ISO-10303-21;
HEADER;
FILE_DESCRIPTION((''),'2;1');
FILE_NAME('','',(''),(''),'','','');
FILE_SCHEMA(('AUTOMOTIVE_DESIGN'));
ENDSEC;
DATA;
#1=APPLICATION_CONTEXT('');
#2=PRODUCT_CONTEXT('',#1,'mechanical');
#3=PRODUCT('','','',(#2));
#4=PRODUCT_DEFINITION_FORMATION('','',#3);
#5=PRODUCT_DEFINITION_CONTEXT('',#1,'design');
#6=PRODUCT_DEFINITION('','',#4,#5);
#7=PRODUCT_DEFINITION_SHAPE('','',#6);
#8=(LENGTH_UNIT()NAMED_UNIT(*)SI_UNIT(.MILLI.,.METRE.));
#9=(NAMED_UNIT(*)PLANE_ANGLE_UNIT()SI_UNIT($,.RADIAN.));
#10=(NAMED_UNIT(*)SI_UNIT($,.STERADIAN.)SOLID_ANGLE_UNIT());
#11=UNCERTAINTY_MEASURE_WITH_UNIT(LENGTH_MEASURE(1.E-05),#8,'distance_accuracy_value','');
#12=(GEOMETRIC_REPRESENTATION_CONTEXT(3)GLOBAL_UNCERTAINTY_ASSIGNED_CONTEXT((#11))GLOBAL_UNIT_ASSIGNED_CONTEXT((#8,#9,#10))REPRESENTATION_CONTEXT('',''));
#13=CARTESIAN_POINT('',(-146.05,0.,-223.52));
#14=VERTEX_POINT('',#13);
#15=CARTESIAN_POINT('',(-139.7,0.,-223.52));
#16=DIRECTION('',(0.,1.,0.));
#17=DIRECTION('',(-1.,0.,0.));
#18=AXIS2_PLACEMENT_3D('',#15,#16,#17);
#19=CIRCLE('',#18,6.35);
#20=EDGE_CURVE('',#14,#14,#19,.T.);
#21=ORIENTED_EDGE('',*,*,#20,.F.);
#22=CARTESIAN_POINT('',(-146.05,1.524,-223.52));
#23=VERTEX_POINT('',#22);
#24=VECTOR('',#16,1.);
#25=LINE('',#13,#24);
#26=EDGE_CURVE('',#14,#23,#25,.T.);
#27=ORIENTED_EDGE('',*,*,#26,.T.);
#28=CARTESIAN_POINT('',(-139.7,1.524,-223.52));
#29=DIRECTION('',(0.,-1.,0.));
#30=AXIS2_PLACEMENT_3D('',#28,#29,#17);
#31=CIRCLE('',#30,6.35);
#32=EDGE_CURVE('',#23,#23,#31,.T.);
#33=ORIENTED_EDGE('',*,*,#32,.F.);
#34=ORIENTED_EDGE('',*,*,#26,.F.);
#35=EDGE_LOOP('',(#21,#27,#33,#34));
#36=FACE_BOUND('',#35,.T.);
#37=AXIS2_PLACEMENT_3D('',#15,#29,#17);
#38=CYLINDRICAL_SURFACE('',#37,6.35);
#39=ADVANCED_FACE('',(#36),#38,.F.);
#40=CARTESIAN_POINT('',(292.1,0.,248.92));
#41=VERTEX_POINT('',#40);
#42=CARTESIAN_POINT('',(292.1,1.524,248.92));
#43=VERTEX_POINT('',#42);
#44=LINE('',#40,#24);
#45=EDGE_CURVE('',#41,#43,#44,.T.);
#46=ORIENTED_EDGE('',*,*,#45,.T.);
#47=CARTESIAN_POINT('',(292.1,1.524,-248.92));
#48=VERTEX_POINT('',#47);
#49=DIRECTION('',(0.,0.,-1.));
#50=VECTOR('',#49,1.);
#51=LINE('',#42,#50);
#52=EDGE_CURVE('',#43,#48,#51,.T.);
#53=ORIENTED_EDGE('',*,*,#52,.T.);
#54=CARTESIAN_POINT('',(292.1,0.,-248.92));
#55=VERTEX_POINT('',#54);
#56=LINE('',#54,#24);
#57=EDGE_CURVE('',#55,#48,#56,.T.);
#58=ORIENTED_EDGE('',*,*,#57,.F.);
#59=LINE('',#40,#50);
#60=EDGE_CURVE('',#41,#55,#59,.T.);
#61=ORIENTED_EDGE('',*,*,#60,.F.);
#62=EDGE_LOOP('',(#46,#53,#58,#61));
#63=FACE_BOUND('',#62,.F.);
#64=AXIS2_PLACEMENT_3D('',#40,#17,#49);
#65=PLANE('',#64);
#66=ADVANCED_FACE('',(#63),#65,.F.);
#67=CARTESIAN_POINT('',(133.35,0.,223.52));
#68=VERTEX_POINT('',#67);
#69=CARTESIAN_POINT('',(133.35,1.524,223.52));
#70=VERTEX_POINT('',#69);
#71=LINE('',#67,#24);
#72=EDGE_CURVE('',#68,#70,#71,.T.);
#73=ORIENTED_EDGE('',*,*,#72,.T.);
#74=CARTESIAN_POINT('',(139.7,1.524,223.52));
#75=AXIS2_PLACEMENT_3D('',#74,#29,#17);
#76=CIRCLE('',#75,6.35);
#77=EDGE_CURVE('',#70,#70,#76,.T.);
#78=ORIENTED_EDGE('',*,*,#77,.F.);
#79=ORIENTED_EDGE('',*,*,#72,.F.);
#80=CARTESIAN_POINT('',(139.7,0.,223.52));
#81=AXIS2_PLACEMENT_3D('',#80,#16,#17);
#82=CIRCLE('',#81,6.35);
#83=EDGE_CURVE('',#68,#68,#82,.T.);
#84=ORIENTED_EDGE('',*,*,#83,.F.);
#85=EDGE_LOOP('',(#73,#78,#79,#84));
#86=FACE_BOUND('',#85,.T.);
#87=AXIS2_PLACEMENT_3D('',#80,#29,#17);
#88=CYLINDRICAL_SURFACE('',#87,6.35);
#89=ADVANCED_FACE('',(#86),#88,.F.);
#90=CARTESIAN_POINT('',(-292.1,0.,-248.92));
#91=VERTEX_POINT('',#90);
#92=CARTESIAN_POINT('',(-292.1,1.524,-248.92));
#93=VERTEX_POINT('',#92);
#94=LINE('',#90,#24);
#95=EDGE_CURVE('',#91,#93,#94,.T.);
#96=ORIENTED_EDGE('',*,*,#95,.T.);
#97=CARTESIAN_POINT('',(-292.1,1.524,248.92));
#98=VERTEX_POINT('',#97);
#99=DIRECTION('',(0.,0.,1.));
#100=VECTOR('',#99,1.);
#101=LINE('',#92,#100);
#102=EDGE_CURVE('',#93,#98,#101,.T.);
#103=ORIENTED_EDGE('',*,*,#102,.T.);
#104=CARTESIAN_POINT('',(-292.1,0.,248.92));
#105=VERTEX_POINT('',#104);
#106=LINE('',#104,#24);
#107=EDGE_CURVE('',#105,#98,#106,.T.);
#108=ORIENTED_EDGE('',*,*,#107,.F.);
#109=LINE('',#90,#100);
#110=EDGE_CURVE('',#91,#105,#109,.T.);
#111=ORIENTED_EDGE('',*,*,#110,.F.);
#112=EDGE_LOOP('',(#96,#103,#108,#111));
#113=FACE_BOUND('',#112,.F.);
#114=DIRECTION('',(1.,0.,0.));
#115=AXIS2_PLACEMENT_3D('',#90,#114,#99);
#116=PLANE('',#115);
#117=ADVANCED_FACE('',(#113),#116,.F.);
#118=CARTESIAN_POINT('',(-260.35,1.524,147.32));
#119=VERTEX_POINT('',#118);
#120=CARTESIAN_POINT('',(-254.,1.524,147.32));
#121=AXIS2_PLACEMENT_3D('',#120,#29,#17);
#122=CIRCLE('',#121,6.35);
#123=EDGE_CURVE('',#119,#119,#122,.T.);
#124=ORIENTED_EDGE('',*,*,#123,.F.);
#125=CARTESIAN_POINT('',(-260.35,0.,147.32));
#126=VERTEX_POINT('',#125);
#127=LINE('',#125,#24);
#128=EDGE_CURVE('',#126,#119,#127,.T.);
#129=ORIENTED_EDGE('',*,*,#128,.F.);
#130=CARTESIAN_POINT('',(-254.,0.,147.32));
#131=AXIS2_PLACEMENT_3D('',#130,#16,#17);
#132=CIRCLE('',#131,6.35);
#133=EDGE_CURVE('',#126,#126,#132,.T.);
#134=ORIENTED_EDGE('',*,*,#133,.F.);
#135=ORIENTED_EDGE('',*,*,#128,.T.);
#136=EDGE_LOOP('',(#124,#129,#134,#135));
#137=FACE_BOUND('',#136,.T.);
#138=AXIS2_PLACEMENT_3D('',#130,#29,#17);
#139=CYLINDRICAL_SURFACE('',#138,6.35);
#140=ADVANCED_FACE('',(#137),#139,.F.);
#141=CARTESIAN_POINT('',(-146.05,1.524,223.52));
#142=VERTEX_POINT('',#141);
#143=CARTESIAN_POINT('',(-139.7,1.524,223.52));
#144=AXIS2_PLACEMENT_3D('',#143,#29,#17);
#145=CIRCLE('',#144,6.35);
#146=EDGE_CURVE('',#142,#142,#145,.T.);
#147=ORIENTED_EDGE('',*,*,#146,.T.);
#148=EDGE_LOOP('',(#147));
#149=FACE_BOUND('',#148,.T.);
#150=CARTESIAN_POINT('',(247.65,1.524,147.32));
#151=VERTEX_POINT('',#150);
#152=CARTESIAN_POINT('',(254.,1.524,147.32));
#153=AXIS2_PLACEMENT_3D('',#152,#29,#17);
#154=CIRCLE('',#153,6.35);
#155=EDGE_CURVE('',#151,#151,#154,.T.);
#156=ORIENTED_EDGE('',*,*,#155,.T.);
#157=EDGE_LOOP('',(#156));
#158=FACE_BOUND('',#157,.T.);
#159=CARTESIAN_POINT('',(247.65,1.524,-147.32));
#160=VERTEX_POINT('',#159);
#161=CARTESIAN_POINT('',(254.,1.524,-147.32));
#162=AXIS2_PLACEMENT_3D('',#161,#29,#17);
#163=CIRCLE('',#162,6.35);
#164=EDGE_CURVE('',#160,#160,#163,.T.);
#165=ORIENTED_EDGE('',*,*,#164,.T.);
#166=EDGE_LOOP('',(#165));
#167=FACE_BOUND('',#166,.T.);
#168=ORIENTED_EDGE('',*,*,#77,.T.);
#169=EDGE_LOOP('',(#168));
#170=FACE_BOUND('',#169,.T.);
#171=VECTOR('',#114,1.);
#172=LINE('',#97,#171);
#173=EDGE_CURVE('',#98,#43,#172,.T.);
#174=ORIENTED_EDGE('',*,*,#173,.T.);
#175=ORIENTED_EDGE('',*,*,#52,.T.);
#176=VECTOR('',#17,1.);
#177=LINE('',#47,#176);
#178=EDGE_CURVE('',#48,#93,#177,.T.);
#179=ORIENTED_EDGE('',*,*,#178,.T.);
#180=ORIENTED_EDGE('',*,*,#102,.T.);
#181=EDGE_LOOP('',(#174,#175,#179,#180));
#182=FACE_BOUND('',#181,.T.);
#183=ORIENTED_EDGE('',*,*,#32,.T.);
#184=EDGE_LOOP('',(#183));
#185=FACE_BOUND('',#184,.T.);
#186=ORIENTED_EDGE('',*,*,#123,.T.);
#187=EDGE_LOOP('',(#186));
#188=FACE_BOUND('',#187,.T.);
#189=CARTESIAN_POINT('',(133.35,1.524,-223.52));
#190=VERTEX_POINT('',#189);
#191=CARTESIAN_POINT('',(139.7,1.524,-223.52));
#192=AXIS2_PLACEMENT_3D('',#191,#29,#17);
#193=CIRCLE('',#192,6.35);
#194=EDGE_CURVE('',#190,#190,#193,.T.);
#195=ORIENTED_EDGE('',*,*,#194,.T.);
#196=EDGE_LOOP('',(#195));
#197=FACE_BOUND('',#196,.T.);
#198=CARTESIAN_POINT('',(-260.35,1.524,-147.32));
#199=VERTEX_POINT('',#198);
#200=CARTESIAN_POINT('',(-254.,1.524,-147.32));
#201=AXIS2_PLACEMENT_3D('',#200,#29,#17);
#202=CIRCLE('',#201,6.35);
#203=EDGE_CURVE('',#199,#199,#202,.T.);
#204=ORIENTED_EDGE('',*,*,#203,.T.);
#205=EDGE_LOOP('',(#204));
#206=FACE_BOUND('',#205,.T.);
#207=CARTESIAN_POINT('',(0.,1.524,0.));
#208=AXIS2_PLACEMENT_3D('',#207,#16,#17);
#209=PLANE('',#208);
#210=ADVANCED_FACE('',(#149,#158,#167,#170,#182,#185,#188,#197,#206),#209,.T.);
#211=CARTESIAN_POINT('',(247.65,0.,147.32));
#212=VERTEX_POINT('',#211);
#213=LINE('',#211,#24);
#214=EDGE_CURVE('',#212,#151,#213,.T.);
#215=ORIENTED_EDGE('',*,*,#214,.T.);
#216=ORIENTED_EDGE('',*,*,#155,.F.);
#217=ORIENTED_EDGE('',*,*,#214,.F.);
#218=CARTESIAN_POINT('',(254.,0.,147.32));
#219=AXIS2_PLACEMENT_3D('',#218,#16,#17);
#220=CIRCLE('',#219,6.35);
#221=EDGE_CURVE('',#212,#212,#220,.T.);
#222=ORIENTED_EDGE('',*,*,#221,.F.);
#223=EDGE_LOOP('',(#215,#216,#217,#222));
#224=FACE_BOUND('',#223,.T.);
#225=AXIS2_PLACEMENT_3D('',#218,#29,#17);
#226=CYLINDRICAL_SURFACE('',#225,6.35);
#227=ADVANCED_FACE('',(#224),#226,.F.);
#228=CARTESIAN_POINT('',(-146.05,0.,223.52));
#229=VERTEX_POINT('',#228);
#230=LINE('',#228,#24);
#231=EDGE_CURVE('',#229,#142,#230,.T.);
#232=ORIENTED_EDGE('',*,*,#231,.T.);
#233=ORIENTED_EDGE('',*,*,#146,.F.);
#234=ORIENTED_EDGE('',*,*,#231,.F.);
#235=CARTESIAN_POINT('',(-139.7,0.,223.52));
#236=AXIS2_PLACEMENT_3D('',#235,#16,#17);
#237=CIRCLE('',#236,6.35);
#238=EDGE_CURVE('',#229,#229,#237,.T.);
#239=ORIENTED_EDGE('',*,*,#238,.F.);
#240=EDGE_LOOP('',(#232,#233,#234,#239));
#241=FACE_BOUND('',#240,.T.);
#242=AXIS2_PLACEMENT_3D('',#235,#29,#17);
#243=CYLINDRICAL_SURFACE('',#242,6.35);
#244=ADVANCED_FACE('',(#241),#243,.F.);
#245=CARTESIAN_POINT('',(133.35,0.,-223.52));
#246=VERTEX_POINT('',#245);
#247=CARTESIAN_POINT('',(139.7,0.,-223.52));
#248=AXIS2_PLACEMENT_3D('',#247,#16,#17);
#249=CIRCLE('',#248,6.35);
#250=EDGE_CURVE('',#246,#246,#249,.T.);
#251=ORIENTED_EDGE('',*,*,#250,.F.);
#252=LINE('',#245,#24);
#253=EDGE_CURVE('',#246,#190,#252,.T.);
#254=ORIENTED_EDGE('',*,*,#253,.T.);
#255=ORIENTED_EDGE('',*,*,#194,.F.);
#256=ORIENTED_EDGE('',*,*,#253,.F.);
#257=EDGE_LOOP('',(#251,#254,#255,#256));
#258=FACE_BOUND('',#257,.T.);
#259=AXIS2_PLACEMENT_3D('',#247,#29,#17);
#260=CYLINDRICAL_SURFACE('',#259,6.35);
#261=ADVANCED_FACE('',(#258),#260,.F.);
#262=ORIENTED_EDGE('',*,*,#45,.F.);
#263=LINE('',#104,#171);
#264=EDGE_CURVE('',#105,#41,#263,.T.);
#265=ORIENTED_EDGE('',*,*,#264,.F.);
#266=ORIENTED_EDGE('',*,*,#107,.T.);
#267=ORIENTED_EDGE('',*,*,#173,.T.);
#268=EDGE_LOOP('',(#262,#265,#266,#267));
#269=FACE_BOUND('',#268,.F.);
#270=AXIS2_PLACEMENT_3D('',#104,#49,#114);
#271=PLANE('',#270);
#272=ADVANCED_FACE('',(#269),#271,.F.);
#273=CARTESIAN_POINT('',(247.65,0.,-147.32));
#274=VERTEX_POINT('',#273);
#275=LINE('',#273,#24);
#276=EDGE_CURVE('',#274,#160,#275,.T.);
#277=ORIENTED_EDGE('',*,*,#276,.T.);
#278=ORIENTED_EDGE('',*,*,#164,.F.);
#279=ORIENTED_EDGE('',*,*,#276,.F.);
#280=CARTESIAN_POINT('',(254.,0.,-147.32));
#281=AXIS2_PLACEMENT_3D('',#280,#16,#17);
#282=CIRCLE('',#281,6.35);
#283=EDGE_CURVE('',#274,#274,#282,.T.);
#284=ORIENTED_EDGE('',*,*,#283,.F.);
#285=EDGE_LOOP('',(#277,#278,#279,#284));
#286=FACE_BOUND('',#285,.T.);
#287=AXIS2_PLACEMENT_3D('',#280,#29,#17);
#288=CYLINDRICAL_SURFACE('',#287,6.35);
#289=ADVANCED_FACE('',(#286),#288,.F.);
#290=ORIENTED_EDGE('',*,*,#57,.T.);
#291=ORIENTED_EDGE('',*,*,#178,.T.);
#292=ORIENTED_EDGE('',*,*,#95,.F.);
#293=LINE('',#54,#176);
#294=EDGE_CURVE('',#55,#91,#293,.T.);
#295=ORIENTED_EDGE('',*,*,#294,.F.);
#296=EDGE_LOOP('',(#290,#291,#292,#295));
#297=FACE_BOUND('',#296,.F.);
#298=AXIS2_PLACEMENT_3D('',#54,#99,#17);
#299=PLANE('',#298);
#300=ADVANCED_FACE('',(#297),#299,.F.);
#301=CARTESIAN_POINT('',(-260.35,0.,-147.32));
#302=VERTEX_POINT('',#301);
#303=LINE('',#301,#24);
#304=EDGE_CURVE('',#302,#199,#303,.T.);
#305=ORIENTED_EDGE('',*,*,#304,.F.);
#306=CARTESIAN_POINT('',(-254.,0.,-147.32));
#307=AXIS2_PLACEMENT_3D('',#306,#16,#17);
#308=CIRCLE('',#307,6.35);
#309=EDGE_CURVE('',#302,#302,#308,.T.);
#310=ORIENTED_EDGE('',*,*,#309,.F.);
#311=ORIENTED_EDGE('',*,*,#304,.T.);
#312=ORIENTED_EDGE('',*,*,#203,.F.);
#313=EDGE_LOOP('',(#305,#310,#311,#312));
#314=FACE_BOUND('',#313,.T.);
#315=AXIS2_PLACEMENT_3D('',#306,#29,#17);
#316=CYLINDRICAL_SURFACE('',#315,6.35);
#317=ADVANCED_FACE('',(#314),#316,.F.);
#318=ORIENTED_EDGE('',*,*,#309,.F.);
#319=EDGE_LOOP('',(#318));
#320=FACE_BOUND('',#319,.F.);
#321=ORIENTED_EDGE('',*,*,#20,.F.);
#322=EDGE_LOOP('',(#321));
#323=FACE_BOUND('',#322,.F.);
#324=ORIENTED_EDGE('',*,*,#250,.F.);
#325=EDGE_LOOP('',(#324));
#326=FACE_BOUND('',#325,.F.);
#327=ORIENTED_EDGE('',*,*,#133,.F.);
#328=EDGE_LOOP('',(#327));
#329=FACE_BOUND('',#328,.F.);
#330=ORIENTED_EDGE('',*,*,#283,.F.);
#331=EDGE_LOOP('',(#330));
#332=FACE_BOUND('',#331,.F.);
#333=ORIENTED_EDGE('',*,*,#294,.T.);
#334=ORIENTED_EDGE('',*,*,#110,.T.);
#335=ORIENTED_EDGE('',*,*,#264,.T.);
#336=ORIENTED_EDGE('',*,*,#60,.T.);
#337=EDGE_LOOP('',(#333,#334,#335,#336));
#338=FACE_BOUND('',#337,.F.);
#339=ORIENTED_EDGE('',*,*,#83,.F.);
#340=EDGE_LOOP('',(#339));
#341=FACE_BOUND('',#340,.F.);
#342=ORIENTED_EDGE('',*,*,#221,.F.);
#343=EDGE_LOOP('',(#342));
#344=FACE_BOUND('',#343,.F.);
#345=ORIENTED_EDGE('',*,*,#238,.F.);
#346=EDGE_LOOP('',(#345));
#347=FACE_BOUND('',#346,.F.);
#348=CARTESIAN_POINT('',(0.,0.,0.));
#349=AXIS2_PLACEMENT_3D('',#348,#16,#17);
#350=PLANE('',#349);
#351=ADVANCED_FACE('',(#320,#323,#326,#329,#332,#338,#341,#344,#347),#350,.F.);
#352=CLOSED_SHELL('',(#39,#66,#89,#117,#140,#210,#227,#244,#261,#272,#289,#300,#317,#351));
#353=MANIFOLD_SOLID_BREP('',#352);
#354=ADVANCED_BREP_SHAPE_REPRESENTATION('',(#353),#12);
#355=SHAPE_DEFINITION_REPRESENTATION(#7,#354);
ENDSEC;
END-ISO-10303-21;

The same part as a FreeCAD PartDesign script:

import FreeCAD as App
import Part
import Sketcher

V = App.Vector
Q = App.Units.Quantity

doc = App.newDocument("Part")
body = doc.addObject("PartDesign::Body", "Body")

# Sketch on XZ plane
sketch1 = doc.addObject("Sketcher::SketchObject", "Sketch")
body.addObject(sketch1)
sketch1.AttachmentSupport = (doc.XZ_Plane, [""])
sketch1.MapMode = "FlatFace"
sketch1.addGeometry(Part.LineSegment(V(292.1, 248.92, 0), V(292.1, -248.92, 0)), False)
sketch1.addGeometry(Part.LineSegment(V(292.1, -248.92, 0), V(-292.1, -248.92, 0)), False)
sketch1.addGeometry(Part.LineSegment(V(-292.1, -248.92, 0), V(-292.1, 248.92, 0)), False)
sketch1.addGeometry(Part.LineSegment(V(-292.1, 248.92, 0), V(292.1, 248.92, 0)), False)
sketch1.addConstraint(Sketcher.Constraint("Coincident", 0, 2, 1, 1))
sketch1.addConstraint(Sketcher.Constraint("Coincident", 1, 2, 2, 1))
sketch1.addConstraint(Sketcher.Constraint("Coincident", 2, 2, 3, 1))
sketch1.addConstraint(Sketcher.Constraint("Coincident", 3, 2, 0, 1))
sketch1.addConstraint(Sketcher.Constraint("Vertical", 0))
sketch1.addConstraint(Sketcher.Constraint("Horizontal", 1))
sketch1.addConstraint(Sketcher.Constraint("Vertical", 2))
sketch1.addConstraint(Sketcher.Constraint("Horizontal", 3))
sketch1.addConstraint(Sketcher.Constraint("Symmetric", 0, 2, 2, 2, -1, 1))
sketch1.addConstraint(Sketcher.Constraint("DistanceX", 1, 2, 1, 1, Q("23 in")))
sketch1.addConstraint(Sketcher.Constraint("DistanceY", 0, 2, 0, 1, Q("19.6 in")))
pad1 = doc.addObject("PartDesign::Pad", "Pad")
body.addObject(pad1)
pad1.Profile = sketch1
pad1.Length = Q("0.06 in")
pad1.Reversed = True

# Sketch on XZ plane
sketch2 = doc.addObject("Sketcher::SketchObject", "Sketch001")
body.addObject(sketch2)
sketch2.AttachmentSupport = (doc.XZ_Plane, [""])
sketch2.MapMode = "FlatFace"
sketch2.addGeometry(Part.Circle(V(-139.7, 223.52, 0), V(0, 0, 1), 6.35), False)
sketch2.addGeometry(Part.Circle(V(139.7, 223.52, 0), V(0, 0, 1), 6.35), False)
sketch2.addGeometry(Part.Circle(V(254, 147.32, 0), V(0, 0, 1), 6.35), False)
sketch2.addGeometry(Part.Circle(V(254, -147.32, 0), V(0, 0, 1), 6.35), False)
sketch2.addGeometry(Part.Circle(V(139.7, -223.52, 0), V(0, 0, 1), 6.35), False)
sketch2.addGeometry(Part.Circle(V(-139.7, -223.52, 0), V(0, 0, 1), 6.35), False)
sketch2.addGeometry(Part.Circle(V(-254, -147.32, 0), V(0, 0, 1), 6.35), False)
sketch2.addGeometry(Part.Circle(V(-254, 147.32, 0), V(0, 0, 1), 6.35), False)
sketch2.addConstraint(Sketcher.Constraint("Equal", 0, 1))
sketch2.addConstraint(Sketcher.Constraint("Equal", 1, 2))
sketch2.addConstraint(Sketcher.Constraint("Equal", 2, 3))
sketch2.addConstraint(Sketcher.Constraint("Equal", 3, 4))
sketch2.addConstraint(Sketcher.Constraint("Equal", 4, 5))
sketch2.addConstraint(Sketcher.Constraint("Equal", 5, 6))
sketch2.addConstraint(Sketcher.Constraint("Equal", 6, 7))
sketch2.addConstraint(Sketcher.Constraint("Symmetric", 0, 3, 4, 3, -1, 1))
sketch2.addConstraint(Sketcher.Constraint("Symmetric", 1, 3, 5, 3, -1, 1))
sketch2.addConstraint(Sketcher.Constraint("Symmetric", 2, 3, 6, 3, -1, 1))
sketch2.addConstraint(Sketcher.Constraint("Symmetric", 3, 3, 7, 3, -1, 1))
sketch2.addConstraint(Sketcher.Constraint("Symmetric", 0, 3, 1, 3, -2))
sketch2.addConstraint(Sketcher.Constraint("Symmetric", 3, 3, 6, 3, -2))
sketch2.addConstraint(Sketcher.Constraint("Diameter", 0, Q("0.5 in")))
sketch2.addConstraint(Sketcher.Constraint("DistanceX", -1, 1, 2, 3, Q("10 in")))
sketch2.addConstraint(Sketcher.Constraint("DistanceX", 0, 3, 1, 3, Q("11 in")))
sketch2.addConstraint(Sketcher.Constraint("DistanceY", 2, 3, 1, 3, Q("3 in")))
sketch2.addConstraint(Sketcher.Constraint("DistanceY", -1, 1, 0, 3, Q("8.8 in")))
pocket1 = doc.addObject("PartDesign::Pocket", "Pocket")
body.addObject(pocket1)
pocket1.Profile = sketch2
pocket1.Length = Q("1 in")

doc.recompute()
